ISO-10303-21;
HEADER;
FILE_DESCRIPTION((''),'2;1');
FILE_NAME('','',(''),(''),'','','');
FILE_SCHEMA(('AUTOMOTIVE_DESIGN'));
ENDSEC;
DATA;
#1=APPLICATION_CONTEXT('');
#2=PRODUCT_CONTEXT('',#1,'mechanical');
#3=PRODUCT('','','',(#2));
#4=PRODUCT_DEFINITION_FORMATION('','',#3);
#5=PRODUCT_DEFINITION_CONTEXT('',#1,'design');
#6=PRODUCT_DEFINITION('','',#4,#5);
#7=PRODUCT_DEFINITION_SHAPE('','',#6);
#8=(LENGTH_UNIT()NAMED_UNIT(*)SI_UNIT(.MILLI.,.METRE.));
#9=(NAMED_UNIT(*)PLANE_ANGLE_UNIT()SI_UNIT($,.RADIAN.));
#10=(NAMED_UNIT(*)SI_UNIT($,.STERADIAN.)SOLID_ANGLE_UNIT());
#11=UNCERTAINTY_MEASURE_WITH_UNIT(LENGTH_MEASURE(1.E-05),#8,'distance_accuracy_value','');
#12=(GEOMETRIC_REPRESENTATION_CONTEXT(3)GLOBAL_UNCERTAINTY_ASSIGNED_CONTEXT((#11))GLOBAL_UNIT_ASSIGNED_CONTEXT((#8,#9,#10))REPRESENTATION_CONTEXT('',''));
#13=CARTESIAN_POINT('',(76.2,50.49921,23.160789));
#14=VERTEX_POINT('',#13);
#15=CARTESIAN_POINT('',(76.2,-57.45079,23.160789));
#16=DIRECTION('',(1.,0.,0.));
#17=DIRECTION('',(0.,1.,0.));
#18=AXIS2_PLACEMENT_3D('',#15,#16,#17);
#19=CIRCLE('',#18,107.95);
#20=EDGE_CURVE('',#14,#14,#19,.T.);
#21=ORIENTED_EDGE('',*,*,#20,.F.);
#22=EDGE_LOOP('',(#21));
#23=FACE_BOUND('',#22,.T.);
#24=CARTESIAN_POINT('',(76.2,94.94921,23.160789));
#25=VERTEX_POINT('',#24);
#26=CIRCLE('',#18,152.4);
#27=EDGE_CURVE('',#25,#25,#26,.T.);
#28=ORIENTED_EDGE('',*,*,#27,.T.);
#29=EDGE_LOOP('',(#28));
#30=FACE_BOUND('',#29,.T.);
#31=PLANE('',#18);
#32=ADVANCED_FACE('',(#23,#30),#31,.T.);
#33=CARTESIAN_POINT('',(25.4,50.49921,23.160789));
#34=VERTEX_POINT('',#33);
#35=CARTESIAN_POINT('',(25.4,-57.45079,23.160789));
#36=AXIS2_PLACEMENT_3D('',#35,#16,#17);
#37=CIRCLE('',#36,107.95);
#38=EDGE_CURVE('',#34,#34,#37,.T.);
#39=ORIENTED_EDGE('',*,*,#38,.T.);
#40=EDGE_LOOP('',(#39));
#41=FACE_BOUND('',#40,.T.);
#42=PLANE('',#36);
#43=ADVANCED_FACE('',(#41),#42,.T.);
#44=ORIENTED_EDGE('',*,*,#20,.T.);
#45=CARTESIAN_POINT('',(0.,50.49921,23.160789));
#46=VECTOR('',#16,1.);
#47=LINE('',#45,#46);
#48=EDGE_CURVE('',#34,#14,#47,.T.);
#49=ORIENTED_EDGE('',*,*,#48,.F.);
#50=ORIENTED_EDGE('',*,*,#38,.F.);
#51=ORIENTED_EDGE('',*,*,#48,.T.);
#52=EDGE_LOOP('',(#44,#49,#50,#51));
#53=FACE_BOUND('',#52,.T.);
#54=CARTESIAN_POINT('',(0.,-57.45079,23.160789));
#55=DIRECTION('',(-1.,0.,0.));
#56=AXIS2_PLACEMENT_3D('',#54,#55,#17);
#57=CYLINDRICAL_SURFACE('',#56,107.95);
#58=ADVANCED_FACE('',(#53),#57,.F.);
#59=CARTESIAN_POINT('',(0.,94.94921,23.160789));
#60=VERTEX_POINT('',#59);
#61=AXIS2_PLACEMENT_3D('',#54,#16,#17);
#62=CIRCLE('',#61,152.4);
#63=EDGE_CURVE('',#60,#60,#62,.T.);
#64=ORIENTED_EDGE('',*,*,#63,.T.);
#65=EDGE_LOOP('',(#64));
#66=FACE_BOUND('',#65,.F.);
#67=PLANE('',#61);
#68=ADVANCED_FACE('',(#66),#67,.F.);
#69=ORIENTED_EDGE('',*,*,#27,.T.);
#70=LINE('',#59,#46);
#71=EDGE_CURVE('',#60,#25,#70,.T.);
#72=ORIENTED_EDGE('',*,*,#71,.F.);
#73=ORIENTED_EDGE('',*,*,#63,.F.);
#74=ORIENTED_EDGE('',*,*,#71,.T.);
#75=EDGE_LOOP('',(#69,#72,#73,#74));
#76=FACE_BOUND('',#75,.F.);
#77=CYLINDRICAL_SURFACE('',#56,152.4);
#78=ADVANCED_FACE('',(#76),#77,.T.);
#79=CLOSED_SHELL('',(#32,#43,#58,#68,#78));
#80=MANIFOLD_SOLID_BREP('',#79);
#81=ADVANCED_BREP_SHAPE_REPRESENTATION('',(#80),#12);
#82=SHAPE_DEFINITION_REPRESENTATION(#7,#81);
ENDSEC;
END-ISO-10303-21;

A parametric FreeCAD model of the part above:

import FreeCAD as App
import Part
import Sketcher

V = App.Vector
Q = App.Units.Quantity

doc = App.newDocument("Part")
body = doc.addObject("PartDesign::Body", "Body")

# Sketch on YZ plane
sketch1 = doc.addObject("Sketcher::SketchObject", "Sketch")
body.addObject(sketch1)
sketch1.AttachmentSupport = (doc.YZ_Plane, [""])
sketch1.MapMode = "FlatFace"
sketch1.addGeometry(Part.Circle(V(-57.45079, 23.160789, 0), V(0, 0, 1), 152.4), False)
sketch1.addGeometry(Part.Circle(V(-57.45079, 23.160789, 0), V(0, 0, 1), 107.95), False)
sketch1.addConstraint(Sketcher.Constraint("Coincident", 1, 3, 0, 3))
sketch1.addConstraint(Sketcher.Constraint("Diameter", 0, Q("12 in")))
sketch1.addConstraint(Sketcher.Constraint("Diameter", 1, Q("8.5 in")))
sketch1.addConstraint(Sketcher.Constraint("DistanceX", 0, 3, -1, 1, 57.45079))
sketch1.addConstraint(Sketcher.Constraint("DistanceY", -1, 1, 0, 3, 23.160789))
pad1 = doc.addObject("PartDesign::Pad", "Pad")
body.addObject(pad1)
pad1.Profile = sketch1
pad1.Length = Q("3 in")

# Sketch on YZ plane
sketch2 = doc.addObject("Sketcher::SketchObject", "Sketch001")
body.addObject(sketch2)
sketch2.AttachmentSupport = (doc.YZ_Plane, [""])
sketch2.MapMode = "FlatFace"
sketch2.addGeometry(Part.Circle(V(-57.45079, 23.160789, 0), V(0, 0, 1), 107.95), False)
sketch2.addConstraint(Sketcher.Constraint("Diameter", 0, Q("8.5 in")))
sketch2.addConstraint(Sketcher.Constraint("DistanceX", 0, 3, -1, 1, 57.45079))
sketch2.addConstraint(Sketcher.Constraint("DistanceY", -1, 1, 0, 3, 23.160789))
pad2 = doc.addObject("PartDesign::Pad", "Pad001")
body.addObject(pad2)
pad2.Profile = sketch2
pad2.Length = Q("1 in")

doc.recompute()
